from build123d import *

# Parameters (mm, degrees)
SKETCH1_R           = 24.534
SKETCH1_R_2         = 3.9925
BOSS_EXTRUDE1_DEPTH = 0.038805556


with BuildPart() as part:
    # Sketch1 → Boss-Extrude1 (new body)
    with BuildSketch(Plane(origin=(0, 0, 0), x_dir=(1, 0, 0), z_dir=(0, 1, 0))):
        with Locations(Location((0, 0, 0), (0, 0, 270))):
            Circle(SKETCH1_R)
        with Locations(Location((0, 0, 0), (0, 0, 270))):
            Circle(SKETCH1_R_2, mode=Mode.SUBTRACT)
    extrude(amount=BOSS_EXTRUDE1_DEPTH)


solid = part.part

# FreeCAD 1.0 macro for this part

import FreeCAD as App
import Part
import Sketcher
from FreeCAD import Vector

doc = App.newDocument("Part")
body = doc.addObject("PartDesign::Body", "Body")

# Sketch on XZ plane
sketch1 = doc.addObject("Sketcher::SketchObject", "Sketch")
body.addObject(sketch1)
sketch1.AttachmentSupport = (doc.XZ_Plane, [""])
sketch1.MapMode = "FlatFace"
sketch1.addGeometry(Part.Circle(Vector(0, 0, 0), Vector(0, 0, 1), 24.5), False)
sketch1.addGeometry(Part.Circle(Vector(0, 0, 0), Vector(0, 0, 1), 4), False)
sketch1.addConstraint(Sketcher.Constraint("Coincident", 0, 3, -1, 1))
sketch1.addConstraint(Sketcher.Constraint("Coincident", 1, 3, -1, 1))
sketch1.addConstraint(Sketcher.Constraint("Diameter", 0, 49.068))
sketch1.addConstraint(Sketcher.Constraint("Diameter", 1, 7.985))
pad1 = doc.addObject("PartDesign::Pad", "Pad")
body.addObject(pad1)
pad1.Profile = sketch1
pad1.Length = 0.038806
pad1.Reversed = True

doc.recompute()
